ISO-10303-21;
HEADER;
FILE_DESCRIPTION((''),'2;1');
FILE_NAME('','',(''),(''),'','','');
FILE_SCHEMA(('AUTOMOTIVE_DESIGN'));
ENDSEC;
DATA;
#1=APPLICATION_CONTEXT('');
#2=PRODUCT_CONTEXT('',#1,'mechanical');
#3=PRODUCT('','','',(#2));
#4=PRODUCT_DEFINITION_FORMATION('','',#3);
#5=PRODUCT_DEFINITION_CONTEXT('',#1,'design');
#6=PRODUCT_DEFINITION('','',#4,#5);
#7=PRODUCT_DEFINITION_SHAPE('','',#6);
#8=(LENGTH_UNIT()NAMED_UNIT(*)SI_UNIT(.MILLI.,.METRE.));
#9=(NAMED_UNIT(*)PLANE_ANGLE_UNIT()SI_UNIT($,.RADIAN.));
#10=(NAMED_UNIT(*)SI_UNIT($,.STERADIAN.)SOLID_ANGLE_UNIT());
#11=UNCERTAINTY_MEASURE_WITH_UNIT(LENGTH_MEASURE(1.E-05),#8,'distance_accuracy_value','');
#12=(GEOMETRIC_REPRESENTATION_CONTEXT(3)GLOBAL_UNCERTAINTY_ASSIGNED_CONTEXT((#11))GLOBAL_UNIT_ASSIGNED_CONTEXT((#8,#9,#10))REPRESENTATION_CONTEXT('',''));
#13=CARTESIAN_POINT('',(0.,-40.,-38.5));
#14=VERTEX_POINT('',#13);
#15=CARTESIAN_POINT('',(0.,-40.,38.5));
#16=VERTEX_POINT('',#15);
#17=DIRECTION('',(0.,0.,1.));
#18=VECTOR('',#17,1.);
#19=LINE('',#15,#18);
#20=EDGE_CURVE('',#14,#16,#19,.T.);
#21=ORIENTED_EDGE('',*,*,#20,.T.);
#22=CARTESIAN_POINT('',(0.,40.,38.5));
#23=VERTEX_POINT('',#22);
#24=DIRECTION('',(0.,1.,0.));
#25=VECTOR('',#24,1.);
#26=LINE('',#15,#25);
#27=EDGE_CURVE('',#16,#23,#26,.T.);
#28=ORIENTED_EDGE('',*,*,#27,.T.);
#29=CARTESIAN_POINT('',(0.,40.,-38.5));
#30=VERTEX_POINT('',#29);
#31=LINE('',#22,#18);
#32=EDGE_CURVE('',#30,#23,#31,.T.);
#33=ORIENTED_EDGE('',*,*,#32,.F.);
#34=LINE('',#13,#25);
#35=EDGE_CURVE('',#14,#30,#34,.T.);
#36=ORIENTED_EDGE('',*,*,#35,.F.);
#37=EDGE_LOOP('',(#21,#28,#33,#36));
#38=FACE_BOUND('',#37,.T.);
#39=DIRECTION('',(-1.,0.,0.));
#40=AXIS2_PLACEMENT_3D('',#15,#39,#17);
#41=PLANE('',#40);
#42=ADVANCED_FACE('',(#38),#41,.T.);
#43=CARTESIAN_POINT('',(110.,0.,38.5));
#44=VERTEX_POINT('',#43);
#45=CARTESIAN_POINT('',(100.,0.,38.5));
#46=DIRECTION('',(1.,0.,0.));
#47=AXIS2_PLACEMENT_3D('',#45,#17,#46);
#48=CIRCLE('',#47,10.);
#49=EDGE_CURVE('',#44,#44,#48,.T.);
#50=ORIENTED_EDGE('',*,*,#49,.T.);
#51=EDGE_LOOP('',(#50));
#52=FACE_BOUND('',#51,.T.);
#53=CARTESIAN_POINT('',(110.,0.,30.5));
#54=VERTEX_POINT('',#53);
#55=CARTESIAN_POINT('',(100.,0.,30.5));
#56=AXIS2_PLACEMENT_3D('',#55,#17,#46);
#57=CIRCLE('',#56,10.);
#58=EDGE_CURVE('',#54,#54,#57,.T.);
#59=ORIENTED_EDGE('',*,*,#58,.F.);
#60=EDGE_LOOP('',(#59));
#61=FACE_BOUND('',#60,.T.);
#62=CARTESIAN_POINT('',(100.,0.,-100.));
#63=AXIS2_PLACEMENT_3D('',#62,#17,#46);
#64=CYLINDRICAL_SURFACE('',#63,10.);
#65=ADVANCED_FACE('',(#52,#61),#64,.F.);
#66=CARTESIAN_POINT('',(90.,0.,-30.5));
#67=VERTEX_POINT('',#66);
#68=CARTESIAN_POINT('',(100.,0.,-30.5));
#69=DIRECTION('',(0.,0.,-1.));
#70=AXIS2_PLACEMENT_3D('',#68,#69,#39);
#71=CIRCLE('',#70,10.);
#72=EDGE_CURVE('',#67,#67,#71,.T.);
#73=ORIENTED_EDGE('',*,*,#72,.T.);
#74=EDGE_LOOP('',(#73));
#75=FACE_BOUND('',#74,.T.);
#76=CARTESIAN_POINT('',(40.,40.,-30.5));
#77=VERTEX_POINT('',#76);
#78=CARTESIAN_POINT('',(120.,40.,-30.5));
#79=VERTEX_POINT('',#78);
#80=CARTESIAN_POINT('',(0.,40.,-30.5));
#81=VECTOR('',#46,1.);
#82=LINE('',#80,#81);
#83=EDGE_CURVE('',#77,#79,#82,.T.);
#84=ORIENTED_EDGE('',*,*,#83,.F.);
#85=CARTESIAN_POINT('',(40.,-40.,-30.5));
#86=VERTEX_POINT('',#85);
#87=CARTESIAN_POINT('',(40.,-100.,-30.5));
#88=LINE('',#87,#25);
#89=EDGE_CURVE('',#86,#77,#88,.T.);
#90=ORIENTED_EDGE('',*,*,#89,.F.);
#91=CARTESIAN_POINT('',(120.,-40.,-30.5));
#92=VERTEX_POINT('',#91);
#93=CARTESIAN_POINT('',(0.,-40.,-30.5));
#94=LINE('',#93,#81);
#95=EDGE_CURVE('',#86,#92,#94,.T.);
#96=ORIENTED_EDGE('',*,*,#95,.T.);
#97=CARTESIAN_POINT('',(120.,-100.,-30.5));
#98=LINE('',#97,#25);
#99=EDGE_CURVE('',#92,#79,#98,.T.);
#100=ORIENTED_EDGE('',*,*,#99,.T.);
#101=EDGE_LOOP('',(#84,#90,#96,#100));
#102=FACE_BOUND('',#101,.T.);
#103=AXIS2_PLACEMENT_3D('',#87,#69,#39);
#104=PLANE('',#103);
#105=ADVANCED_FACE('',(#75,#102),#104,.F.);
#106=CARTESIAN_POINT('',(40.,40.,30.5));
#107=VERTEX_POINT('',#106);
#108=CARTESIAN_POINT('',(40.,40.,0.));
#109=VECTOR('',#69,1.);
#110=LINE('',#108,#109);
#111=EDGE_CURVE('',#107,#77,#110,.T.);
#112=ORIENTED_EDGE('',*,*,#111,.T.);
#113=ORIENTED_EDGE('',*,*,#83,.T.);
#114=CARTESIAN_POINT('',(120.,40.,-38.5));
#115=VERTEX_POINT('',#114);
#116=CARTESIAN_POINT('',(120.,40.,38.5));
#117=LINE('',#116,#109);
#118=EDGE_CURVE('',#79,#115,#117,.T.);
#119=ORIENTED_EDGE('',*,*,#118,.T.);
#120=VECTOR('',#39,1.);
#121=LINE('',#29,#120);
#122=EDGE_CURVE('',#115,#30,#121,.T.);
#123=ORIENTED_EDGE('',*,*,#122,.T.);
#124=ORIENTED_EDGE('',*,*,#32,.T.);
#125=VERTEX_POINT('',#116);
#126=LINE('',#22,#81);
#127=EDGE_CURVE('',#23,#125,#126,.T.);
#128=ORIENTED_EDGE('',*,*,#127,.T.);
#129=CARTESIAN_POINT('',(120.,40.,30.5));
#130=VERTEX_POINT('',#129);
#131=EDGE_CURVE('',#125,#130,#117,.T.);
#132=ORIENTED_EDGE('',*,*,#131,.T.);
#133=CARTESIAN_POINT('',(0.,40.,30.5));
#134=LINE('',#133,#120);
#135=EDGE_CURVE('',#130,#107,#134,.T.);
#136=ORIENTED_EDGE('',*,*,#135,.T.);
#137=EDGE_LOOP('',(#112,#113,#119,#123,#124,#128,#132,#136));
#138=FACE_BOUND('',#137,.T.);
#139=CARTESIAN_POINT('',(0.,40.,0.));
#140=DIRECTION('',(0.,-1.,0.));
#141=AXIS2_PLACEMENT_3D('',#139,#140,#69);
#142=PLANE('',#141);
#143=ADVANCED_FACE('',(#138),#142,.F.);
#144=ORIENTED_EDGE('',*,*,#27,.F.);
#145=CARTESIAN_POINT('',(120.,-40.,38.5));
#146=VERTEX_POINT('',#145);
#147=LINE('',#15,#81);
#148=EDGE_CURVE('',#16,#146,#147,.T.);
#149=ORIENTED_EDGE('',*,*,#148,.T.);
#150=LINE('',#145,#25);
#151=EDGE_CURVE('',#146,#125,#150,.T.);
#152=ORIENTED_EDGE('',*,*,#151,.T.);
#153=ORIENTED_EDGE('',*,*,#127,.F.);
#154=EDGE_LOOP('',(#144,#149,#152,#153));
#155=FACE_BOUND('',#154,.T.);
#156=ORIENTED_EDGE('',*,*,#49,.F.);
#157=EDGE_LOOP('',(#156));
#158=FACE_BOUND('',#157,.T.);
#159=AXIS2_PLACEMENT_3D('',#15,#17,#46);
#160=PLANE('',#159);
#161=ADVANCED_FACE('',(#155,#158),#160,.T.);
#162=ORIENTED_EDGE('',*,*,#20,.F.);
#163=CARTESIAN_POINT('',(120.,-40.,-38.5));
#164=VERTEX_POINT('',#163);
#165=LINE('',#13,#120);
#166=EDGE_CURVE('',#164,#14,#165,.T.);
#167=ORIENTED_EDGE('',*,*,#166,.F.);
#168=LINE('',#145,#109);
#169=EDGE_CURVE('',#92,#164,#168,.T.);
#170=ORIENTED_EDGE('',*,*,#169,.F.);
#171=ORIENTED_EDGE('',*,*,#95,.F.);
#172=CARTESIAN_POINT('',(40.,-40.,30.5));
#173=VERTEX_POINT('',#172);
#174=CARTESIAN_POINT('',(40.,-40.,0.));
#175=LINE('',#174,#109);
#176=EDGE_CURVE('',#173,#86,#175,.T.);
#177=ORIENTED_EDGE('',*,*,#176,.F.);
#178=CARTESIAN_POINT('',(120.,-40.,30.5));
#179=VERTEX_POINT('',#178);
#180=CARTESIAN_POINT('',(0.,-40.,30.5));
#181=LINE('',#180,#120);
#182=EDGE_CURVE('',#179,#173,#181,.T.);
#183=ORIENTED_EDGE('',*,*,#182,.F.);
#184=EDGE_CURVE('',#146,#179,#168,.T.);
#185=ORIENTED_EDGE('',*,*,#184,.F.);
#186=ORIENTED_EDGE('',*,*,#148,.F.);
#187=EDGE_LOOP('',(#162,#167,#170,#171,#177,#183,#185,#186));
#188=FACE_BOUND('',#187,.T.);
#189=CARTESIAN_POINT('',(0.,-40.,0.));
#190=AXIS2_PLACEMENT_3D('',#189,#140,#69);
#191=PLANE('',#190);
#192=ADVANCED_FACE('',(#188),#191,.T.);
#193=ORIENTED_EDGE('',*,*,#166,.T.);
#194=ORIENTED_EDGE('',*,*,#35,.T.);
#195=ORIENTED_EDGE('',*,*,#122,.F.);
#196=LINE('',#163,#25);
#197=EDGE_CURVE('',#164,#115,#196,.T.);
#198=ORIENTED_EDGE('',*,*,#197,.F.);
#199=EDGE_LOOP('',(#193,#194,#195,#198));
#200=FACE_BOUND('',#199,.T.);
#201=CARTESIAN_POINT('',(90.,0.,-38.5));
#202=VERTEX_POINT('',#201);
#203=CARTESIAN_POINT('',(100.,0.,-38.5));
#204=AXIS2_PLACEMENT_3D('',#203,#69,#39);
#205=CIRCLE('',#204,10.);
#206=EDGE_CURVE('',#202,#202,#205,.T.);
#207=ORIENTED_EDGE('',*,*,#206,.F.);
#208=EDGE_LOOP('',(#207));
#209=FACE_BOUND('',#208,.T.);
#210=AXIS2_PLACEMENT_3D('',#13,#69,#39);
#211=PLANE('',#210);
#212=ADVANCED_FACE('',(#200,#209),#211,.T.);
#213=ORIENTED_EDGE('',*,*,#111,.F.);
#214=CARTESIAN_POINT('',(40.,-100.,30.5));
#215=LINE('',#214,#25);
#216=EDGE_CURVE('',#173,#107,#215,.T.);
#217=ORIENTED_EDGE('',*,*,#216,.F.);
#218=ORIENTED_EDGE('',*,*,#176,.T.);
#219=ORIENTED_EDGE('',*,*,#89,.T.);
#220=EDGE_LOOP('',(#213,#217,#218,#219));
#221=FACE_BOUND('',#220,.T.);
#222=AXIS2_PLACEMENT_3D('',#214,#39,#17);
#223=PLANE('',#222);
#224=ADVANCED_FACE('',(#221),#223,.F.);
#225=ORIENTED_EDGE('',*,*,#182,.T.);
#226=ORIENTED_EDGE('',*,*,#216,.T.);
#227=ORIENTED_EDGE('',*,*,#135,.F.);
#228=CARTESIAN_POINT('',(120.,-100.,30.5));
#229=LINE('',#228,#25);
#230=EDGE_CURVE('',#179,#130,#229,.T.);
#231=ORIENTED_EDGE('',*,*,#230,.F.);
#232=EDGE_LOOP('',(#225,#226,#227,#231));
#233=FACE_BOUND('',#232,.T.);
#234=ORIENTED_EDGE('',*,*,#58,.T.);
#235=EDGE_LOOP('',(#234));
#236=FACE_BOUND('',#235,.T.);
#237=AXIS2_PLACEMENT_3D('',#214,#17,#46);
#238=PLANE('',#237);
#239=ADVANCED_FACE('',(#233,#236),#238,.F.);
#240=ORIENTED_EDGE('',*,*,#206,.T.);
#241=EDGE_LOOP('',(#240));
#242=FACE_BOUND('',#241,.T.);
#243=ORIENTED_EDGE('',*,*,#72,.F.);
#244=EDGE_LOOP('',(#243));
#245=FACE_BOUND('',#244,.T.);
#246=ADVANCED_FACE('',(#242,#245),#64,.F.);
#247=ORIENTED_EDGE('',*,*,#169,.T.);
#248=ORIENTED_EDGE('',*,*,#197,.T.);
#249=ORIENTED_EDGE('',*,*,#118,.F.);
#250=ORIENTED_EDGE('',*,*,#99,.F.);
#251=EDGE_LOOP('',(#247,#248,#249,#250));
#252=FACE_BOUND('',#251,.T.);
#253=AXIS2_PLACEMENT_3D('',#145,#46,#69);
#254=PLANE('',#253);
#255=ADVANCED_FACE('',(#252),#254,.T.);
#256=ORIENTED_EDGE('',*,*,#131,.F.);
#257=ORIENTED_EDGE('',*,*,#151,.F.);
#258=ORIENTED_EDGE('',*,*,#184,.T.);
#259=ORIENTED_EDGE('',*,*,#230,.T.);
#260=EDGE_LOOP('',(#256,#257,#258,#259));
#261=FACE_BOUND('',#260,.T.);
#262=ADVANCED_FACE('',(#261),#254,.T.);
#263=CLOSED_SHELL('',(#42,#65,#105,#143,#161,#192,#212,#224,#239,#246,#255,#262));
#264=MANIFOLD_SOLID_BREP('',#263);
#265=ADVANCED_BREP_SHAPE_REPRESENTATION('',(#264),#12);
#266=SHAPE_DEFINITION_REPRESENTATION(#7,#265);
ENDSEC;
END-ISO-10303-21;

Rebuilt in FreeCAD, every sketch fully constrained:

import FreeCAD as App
import Part
import Sketcher

V = App.Vector
Q = App.Units.Quantity

doc = App.newDocument("Part")
body = doc.addObject("PartDesign::Body", "Body")

# Sketch on XZ plane
sketch1 = body.newObject("Sketcher::SketchObject", "Sketch")
sketch1.AttachmentSupport = (doc.getObject("XZ_Plane"), [""])
sketch1.MapMode = "FlatFace"
sketch1.addGeometry([
    Part.LineSegment(V(0, -38, 0), V(0, 38, 0)),
    Part.LineSegment(V(0, 38, 0), V(120, 38, 0)),
    Part.LineSegment(V(120, 38, 0), V(120, -38, 0)),
    Part.LineSegment(V(120, -38, 0), V(0, -38, 0)),
], False)
sketch1.addConstraint([
    Sketcher.Constraint("Coincident", 0, 2, 1, 1),
    Sketcher.Constraint("Coincident", 1, 2, 2, 1),
    Sketcher.Constraint("Coincident", 2, 2, 3, 1),
    Sketcher.Constraint("Coincident", 3, 2, 0, 1),
    Sketcher.Constraint("Vertical", 0),
    Sketcher.Constraint("Horizontal", 1),
    Sketcher.Constraint("Vertical", 2),
    Sketcher.Constraint("Horizontal", 3),
    Sketcher.Constraint("Symmetric", 0, 2, 3, 2, -1, 1),
    Sketcher.Constraint("DistanceX", 1, 1, 1, 2, Q("120 mm")),
    Sketcher.Constraint("DistanceY", 0, 1, 0, 2, Q("77 mm")),
])
pad1 = body.newObject("PartDesign::Pad", "Pad")
pad1.Profile = sketch1
pad1.Type = "TwoLengths"
pad1.Length = 40
pad1.Length2 = 40
pad1.Reversed = True

# Sketch on XZ plane
sketch2 = body.newObject("Sketcher::SketchObject", "Sketch001")
sketch2.AttachmentSupport = (doc.getObject("XZ_Plane"), [""])
sketch2.MapMode = "FlatFace"
sketch2.addGeometry([
    Part.LineSegment(V(40, -30, 0), V(40, 30, 0)),
    Part.LineSegment(V(40, 30, 0), V(120, 30, 0)),
    Part.LineSegment(V(120, 30, 0), V(120, -30, 0)),
    Part.LineSegment(V(120, -30, 0), V(40, -30, 0)),
], False)
sketch2.addConstraint([
    Sketcher.Constraint("Coincident", 0, 2, 1, 1),
    Sketcher.Constraint("Coincident", 1, 2, 2, 1),
    Sketcher.Constraint("Coincident", 2, 2, 3, 1),
    Sketcher.Constraint("Coincident", 3, 2, 0, 1),
    Sketcher.Constraint("Vertical", 0),
    Sketcher.Constraint("Horizontal", 1),
    Sketcher.Constraint("Vertical", 2),
    Sketcher.Constraint("Horizontal", 3),
    Sketcher.Constraint("DistanceX", 1, 1, 1, 2, Q("80 mm")),
    Sketcher.Constraint("DistanceY", 0, 1, 0, 2, Q("61 mm")),
    Sketcher.Constraint("DistanceX", -1, 1, 0, 2, Q("40 mm")),
    Sketcher.Constraint("DistanceY", -1, 1, 0, 2, Q("30.5 mm")),
])
pocket1 = body.newObject("PartDesign::Pocket", "Pocket")
pocket1.Profile = sketch2
pocket1.Type = "ThroughAll"
pocket1.Midplane = True

# Sketch on XY plane
sketch3 = body.newObject("Sketcher::SketchObject", "Sketch002")
sketch3.AttachmentSupport = (doc.getObject("XY_Plane"), [""])
sketch3.MapMode = "FlatFace"
sketch3.addGeometry(Part.Circle(V(100, 0, 0), V(0, 0, 1), 10), False)
sketch3.addConstraint([
    Sketcher.Constraint("PointOnObject", 0, 3, -1),
    Sketcher.Constraint("Diameter", 0, Q("20 mm")),
    Sketcher.Constraint("DistanceX", -1, 1, 0, 3, Q("100 mm")),
])
pocket2 = body.newObject("PartDesign::Pocket", "Pocket001")
pocket2.Profile = sketch3
pocket2.Type = "ThroughAll"
pocket2.Midplane = True

doc.recompute()
